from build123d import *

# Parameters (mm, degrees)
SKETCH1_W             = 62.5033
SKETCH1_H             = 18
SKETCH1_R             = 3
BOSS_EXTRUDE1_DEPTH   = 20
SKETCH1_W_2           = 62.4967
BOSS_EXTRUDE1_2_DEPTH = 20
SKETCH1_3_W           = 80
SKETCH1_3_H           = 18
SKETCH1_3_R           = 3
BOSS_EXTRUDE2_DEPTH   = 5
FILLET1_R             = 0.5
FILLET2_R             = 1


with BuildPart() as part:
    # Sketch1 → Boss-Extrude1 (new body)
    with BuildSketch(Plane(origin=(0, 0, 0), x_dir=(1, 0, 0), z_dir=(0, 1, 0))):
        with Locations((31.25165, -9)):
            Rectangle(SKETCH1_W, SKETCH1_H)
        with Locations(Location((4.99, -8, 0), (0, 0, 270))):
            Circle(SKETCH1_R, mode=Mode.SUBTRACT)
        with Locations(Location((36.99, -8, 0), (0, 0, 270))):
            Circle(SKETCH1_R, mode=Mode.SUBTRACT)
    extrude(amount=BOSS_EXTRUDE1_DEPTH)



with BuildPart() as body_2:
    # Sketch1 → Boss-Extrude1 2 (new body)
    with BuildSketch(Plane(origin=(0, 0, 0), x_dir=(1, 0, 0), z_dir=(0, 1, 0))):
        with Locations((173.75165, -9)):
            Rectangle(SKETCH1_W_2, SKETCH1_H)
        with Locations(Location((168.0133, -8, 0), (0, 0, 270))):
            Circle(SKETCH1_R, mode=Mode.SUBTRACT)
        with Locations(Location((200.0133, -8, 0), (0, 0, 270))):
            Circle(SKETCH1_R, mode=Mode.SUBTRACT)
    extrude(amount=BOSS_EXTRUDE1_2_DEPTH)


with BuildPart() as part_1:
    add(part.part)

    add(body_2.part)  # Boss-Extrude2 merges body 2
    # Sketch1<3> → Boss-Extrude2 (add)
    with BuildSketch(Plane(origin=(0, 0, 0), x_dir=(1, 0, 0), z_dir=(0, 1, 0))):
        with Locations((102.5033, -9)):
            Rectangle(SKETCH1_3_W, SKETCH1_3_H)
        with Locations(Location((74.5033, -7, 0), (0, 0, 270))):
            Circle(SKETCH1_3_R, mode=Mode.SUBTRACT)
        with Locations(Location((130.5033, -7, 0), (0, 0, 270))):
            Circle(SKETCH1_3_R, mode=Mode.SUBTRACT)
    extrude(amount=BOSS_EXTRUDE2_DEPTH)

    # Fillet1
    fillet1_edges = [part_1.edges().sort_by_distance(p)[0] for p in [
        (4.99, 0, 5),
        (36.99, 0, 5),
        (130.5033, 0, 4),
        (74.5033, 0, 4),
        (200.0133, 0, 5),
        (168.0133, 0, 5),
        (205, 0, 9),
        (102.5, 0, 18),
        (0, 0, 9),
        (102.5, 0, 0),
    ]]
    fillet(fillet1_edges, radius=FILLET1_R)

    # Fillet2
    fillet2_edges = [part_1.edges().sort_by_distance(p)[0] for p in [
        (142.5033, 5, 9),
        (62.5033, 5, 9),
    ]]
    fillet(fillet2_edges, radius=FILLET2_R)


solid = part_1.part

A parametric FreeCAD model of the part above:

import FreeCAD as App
import Part
import Sketcher

V = App.Vector


def edges_at(feature, points):
    """Names of the edges that pass closest to the given points."""
    edges = feature.Shape.Edges
    near = lambda p: min(range(len(edges)), key=lambda i: edges[i].distToShape(Part.Vertex(*p))[0])
    return sorted({f"Edge{near(p) + 1}" for p in points})

doc = App.newDocument("Part")
params = doc.addObject("Spreadsheet::Sheet", "Params")
for row, (alias, value) in enumerate([
    ("sketch1_diameter", "6 mm"),
    ("sketch1_height", "18 mm"),
    ("pad1_length", "20 mm"),
    ("sketch2_diameter", "6 mm"),
    ("sketch2_height", "18 mm"),
    ("pad2_length", "20 mm"),
    ("sketch3_diameter", "6 mm"),
    ("sketch3_width", "80 mm"),
    ("sketch3_height", "18 mm"),
    ("pad3_length", "5 mm"),
    ("fillet_radius", "0.5 mm"),
    ("fillet2_radius", "1 mm"),
], start=1):
    params.set(f"A{row}", alias)
    params.set(f"B{row}", "=" + value)
    params.setAlias(f"B{row}", alias)

body = doc.addObject("PartDesign::Body", "Body")

# Sketch on XZ plane
sketch1 = body.newObject("Sketcher::SketchObject", "Sketch")
sketch1.AttachmentSupport = (doc.getObject("XZ_Plane"), [""])
sketch1.MapMode = "FlatFace"
sketch1.addGeometry([
    Part.LineSegment(V(0, 0, 0), V(0, 18, 0)),  # 0
    Part.LineSegment(V(0, 18, 0), V(62.5, 18, 0)),  # 1
    Part.LineSegment(V(62.5, 18, 0), V(62.5, 0, 0)),  # 2
    Part.LineSegment(V(62.5, 0, 0), V(0, 0, 0)),  # 3
    Part.Circle(V(5, 8, 0), V(0, 0, 1), 3),  # 4
    Part.Circle(V(37, 8, 0), V(0, 0, 1), 3),  # 5
], False)
sketch1.addConstraint([
    Sketcher.Constraint("Coincident", 0, 2, 1, 1),
    Sketcher.Constraint("Coincident", 1, 2, 2, 1),
    Sketcher.Constraint("Coincident", 2, 2, 3, 1),
    Sketcher.Constraint("Coincident", 3, 2, 0, 1),
    Sketcher.Constraint("Vertical", 0),
    Sketcher.Constraint("Horizontal", 1),
    Sketcher.Constraint("Vertical", 2),
    Sketcher.Constraint("Horizontal", 3),
    Sketcher.Constraint("Coincident", 3, 2, -1, 1),
    Sketcher.Constraint("Equal", 4, 5),
    Sketcher.Constraint("Horizontal", 4, 3, 5, 3),
    Sketcher.Constraint("Diameter", 4, 6.0),
    Sketcher.Constraint("DistanceY", 0, 1, 0, 2, 18.0),
    Sketcher.Constraint("DistanceY", -1, 1, 4, 3, 8.0),
    Sketcher.Constraint("DistanceX", 4, 3, 5, 3, 32.0),
    Sketcher.Constraint("DistanceX", -1, 1, 4, 3, 4.99),
    Sketcher.Constraint("DistanceX", 1, 1, 1, 2, 62.5033),
])
sketch1.setExpression("Constraints[11]", "Params.sketch1_diameter")
sketch1.setExpression("Constraints[12]", "Params.sketch1_height")
pad1 = body.newObject("PartDesign::Pad", "Pad")
pad1.Profile = sketch1
pad1.setExpression("Length", "Params.pad1_length")
pad1.Reversed = True
body2 = doc.addObject("PartDesign::Body", "Body001")

# Sketch on XZ plane
sketch2 = body2.newObject("Sketcher::SketchObject", "Sketch001")
sketch2.AttachmentSupport = (doc.getObject("XZ_Plane001"), [""])
sketch2.MapMode = "FlatFace"
sketch2.addGeometry([
    Part.LineSegment(V(142.5, 0, 0), V(142.5, 18, 0)),  # 0
    Part.LineSegment(V(142.5, 18, 0), V(205, 18, 0)),  # 1
    Part.LineSegment(V(205, 18, 0), V(205, 0, 0)),  # 2
    Part.LineSegment(V(205, 0, 0), V(142.5, 0, 0)),  # 3
    Part.Circle(V(168, 8, 0), V(0, 0, 1), 3),  # 4
    Part.Circle(V(200, 8, 0), V(0, 0, 1), 3),  # 5
], False)
sketch2.addConstraint([
    Sketcher.Constraint("Coincident", 0, 2, 1, 1),
    Sketcher.Constraint("Coincident", 1, 2, 2, 1),
    Sketcher.Constraint("Coincident", 2, 2, 3, 1),
    Sketcher.Constraint("Coincident", 3, 2, 0, 1),
    Sketcher.Constraint("Vertical", 0),
    Sketcher.Constraint("Horizontal", 1),
    Sketcher.Constraint("Vertical", 2),
    Sketcher.Constraint("Horizontal", 3),
    Sketcher.Constraint("Equal", 4, 5),
    Sketcher.Constraint("PointOnObject", 2, 2, -1),
    Sketcher.Constraint("Horizontal", 4, 3, 5, 3),
    Sketcher.Constraint("Diameter", 4, 6.0),
    Sketcher.Constraint("DistanceY", 0, 1, 0, 2, 18.0),
    Sketcher.Constraint("DistanceY", -1, 1, 4, 3, 8.0),
    Sketcher.Constraint("DistanceX", -1, 1, 1, 2, 205.0),
    Sketcher.Constraint("DistanceX", 4, 3, 5, 3, 32.0),
    Sketcher.Constraint("DistanceX", 0, 2, 4, 3, 25.51),
    Sketcher.Constraint("DistanceX", 1, 1, 1, 2, 62.4967),
])
sketch2.setExpression("Constraints[11]", "Params.sketch2_diameter")
sketch2.setExpression("Constraints[12]", "Params.sketch2_height")
pad2 = body2.newObject("PartDesign::Pad", "Pad001")
pad2.Profile = sketch2
pad2.setExpression("Length", "Params.pad2_length")
pad2.Reversed = True
body.AllowCompound = True
doc.recompute()

boolean = body.newObject("PartDesign::Boolean", "Boolean")
boolean.Type = "Fuse"
boolean.addObjects([body2])

# Sketch on XZ plane
sketch3 = body.newObject("Sketcher::SketchObject", "Sketch002")
sketch3.AttachmentSupport = (doc.getObject("XZ_Plane"), [""])
sketch3.MapMode = "FlatFace"
sketch3.addGeometry([
    Part.LineSegment(V(62.5, 0, 0), V(62.5, 18, 0)),  # 0
    Part.LineSegment(V(62.5, 18, 0), V(142.5, 18, 0)),  # 1
    Part.LineSegment(V(142.5, 18, 0), V(142.5, 0, 0)),  # 2
    Part.LineSegment(V(142.5, 0, 0), V(62.5, 0, 0)),  # 3
    Part.Circle(V(74.5, 7, 0), V(0, 0, 1), 3),  # 4
    Part.Circle(V(130.5, 7, 0), V(0, 0, 1), 3),  # 5
], False)
sketch3.addConstraint([
    Sketcher.Constraint("Coincident", 0, 2, 1, 1),
    Sketcher.Constraint("Coincident", 1, 2, 2, 1),
    Sketcher.Constraint("Coincident", 2, 2, 3, 1),
    Sketcher.Constraint("Coincident", 3, 2, 0, 1),
    Sketcher.Constraint("Vertical", 0),
    Sketcher.Constraint("Horizontal", 1),
    Sketcher.Constraint("Vertical", 2),
    Sketcher.Constraint("Horizontal", 3),
    Sketcher.Constraint("Equal", 4, 5),
    Sketcher.Constraint("PointOnObject", 2, 2, -1),
    Sketcher.Constraint("Horizontal", 4, 3, 5, 3),
    Sketcher.Constraint("Diameter", 4, 6.0),
    Sketcher.Constraint("DistanceX", 1, 1, 1, 2, 80.0),
    Sketcher.Constraint("DistanceY", 0, 1, 0, 2, 18.0),
    Sketcher.Constraint("DistanceY", -1, 1, 4, 3, 7.0),
    Sketcher.Constraint("DistanceX", 4, 3, 5, 3, 56.0),
    Sketcher.Constraint("DistanceX", 0, 2, 4, 3, 12.0),
    Sketcher.Constraint("DistanceX", -1, 1, 4, 3, 74.5033),
])
sketch3.setExpression("Constraints[11]", "Params.sketch3_diameter")
sketch3.setExpression("Constraints[12]", "Params.sketch3_width")
sketch3.setExpression("Constraints[13]", "Params.sketch3_height")
pad3 = body.newObject("PartDesign::Pad", "Pad002")
pad3.Profile = sketch3
pad3.setExpression("Length", "Params.pad3_length")
pad3.Reversed = True
doc.recompute()

fillet = body.newObject("PartDesign::Fillet", "Fillet")
fillet.Base = (pad3, edges_at(pad3, [
    (4.99, 0, 5),
    (36.99, 0, 5),
    (130.503, 0, 4),
    (74.503, 0, 4),
    (200.013, 0, 5),
    (168.013, 0, 5),
    (205, 0, 9),
    (102.5, 0, 18),
    (0, 0, 9),
    (102.5, 0, 0),
]))
fillet.setExpression("Radius", "Params.fillet_radius")
doc.recompute()

fillet2 = body.newObject("PartDesign::Fillet", "Fillet001")
fillet2.Base = (fillet, edges_at(fillet, [(142.503, 5, 9), (62.503, 5, 9)]))
fillet2.setExpression("Radius", "Params.fillet2_radius")

doc.recompute()
